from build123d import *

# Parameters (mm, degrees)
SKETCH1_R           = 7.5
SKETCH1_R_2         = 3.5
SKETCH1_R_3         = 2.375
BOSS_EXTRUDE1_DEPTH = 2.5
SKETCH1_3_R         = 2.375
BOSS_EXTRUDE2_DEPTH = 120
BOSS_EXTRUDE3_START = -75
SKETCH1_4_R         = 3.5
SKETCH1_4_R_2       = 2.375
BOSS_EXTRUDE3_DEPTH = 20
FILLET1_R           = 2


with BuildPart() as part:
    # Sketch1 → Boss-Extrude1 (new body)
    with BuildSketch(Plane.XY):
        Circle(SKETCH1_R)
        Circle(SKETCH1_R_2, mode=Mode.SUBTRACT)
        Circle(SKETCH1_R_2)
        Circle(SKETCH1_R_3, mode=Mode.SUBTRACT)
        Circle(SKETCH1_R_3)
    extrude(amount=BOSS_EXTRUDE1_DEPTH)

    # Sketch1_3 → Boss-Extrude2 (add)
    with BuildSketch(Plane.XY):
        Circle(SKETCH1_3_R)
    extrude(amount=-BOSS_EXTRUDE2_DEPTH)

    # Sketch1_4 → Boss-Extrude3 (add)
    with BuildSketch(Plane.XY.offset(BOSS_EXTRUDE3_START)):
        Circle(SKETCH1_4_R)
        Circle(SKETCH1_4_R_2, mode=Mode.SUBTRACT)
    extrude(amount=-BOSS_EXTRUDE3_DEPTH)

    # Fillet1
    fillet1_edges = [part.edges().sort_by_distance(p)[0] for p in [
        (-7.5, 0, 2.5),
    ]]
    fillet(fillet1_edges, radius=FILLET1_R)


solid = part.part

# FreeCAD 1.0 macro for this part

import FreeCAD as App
import Part
import Sketcher

V = App.Vector


def edges_at(feature, points):
    """Names of the edges that pass closest to the given points."""
    edges = feature.Shape.Edges
    near = lambda p: min(range(len(edges)), key=lambda i: edges[i].distToShape(Part.Vertex(*p))[0])
    return sorted({f"Edge{near(p) + 1}" for p in points})

doc = App.newDocument("Part")
body = doc.addObject("PartDesign::Body", "Body")

sketch1 = body.newObject("Sketcher::SketchObject", "Sketch")
sketch1.AttachmentSupport = (doc.getObject("XY_Plane"), [""])
sketch1.MapMode = "FlatFace"
sketch1.addGeometry(Part.Circle(V(0, 0, 0), V(0, 0, 1), 8), False)
sketch1.addConstraint(Sketcher.Constraint("Coincident", 0, 3, -1, 1))
sketch1.addConstraint(Sketcher.Constraint("Diameter", 0, 15.0))
pad1 = body.newObject("PartDesign::Pad", "Pad")
pad1.Profile = sketch1
pad1.Length = 2.5

sketch2 = body.newObject("Sketcher::SketchObject", "Sketch001")
sketch2.AttachmentSupport = (doc.getObject("XY_Plane"), [""])
sketch2.MapMode = "FlatFace"
sketch2.addGeometry(Part.Circle(V(0, 0, 0), V(0, 0, 1), 2.4), False)
sketch2.addConstraint(Sketcher.Constraint("Coincident", 0, 3, -1, 1))
sketch2.addConstraint(Sketcher.Constraint("Diameter", 0, 4.75))
pad2 = body.newObject("PartDesign::Pad", "Pad001")
pad2.Profile = sketch2
pad2.Length = 120
pad2.Reversed = True

sketch3 = body.newObject("Sketcher::SketchObject", "Sketch002")
sketch3.AttachmentSupport = (doc.getObject("XY_Plane"), [""])
sketch3.MapMode = "FlatFace"
sketch3.AttachmentOffset = App.Placement(V(0, 0, -75), App.Rotation())
sketch3.addGeometry(Part.Circle(V(0, 0, 0), V(0, 0, 1), 3.5), False)
sketch3.addGeometry(Part.Circle(V(0, 0, 0), V(0, 0, 1), 2.4), False)
sketch3.addConstraint(Sketcher.Constraint("Coincident", 0, 3, -1, 1))
sketch3.addConstraint(Sketcher.Constraint("Coincident", 1, 3, -1, 1))
sketch3.addConstraint(Sketcher.Constraint("Diameter", 0, 7.0))
sketch3.addConstraint(Sketcher.Constraint("Diameter", 1, 4.75))
pad3 = body.newObject("PartDesign::Pad", "Pad002")
pad3.Profile = sketch3
pad3.Length = 20
pad3.Reversed = True
doc.recompute()

fillet = body.newObject("PartDesign::Fillet", "Fillet")
fillet.Base = (pad3, edges_at(pad3, [(-7.5, 0, 2.5)]))
fillet.Radius = 2

doc.recompute()
